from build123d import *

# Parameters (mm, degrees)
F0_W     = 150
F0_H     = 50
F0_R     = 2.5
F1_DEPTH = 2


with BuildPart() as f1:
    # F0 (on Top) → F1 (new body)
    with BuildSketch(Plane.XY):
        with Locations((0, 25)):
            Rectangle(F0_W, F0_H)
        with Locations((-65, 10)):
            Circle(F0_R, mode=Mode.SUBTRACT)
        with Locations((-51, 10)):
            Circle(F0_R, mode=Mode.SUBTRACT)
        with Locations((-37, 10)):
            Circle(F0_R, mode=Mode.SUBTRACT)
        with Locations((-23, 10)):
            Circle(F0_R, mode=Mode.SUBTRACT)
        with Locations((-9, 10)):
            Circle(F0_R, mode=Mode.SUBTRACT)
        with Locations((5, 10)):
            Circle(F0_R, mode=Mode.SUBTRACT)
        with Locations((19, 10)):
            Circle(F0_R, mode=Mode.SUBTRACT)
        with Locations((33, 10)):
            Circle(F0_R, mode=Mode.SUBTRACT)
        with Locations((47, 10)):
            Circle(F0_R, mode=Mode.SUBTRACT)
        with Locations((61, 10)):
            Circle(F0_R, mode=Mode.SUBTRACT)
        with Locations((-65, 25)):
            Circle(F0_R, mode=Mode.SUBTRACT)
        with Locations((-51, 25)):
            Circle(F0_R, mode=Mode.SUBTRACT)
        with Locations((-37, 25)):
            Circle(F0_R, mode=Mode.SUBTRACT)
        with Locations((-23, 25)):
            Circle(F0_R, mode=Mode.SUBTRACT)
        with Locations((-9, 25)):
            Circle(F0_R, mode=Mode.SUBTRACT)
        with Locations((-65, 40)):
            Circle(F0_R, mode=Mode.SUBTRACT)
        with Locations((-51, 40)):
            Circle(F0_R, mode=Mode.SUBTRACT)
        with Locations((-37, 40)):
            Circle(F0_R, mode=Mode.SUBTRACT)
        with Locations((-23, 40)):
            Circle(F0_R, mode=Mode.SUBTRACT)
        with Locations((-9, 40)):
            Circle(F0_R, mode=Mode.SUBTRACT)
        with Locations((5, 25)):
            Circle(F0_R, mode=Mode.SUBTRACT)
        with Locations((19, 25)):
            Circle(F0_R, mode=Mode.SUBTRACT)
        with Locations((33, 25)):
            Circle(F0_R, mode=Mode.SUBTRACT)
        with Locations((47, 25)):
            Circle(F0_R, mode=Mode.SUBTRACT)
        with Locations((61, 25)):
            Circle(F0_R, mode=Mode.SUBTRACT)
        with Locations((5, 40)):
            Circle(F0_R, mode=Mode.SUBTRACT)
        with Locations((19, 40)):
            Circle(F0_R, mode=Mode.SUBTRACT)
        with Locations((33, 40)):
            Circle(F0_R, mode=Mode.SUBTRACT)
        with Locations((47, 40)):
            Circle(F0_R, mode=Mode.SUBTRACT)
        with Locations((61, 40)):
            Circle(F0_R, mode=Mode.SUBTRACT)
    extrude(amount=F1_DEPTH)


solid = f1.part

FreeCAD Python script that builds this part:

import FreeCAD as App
import Part
import Sketcher
Q = App.Units.Quantity

doc = App.newDocument("Part")
body = doc.addObject("PartDesign::Body", "Body")

# Sketch on XY plane
sketch1 = body.newObject("Sketcher::SketchObject", "Sketch")
sketch1.AttachmentSupport = (doc.getObject("XY_Plane"), [""])
sketch1.MapMode = "FlatFace"
sketch1.addGeometry([
    Part.LineSegment(App.Vector(-75, 50, 0), App.Vector(-75, 0, 0)),  # 0
    Part.LineSegment(App.Vector(-75, 0, 0), App.Vector(75, 0, 0)),  # 1
    Part.LineSegment(App.Vector(75, 0, 0), App.Vector(75, 50, 0)),  # 2
    Part.LineSegment(App.Vector(75, 50, 0), App.Vector(-75, 50, 0)),  # 3
    Part.Circle(App.Vector(-65, 10, 0), App.Vector(0, 0, 1), 2.5),  # 4
    Part.Circle(App.Vector(-51, 10, 0), App.Vector(0, 0, 1), 2.5),  # 5
    Part.Circle(App.Vector(-37, 10, 0), App.Vector(0, 0, 1), 2.5),  # 6
    Part.Circle(App.Vector(-23, 10, 0), App.Vector(0, 0, 1), 2.5),  # 7
    Part.Circle(App.Vector(-9, 10, 0), App.Vector(0, 0, 1), 2.5),  # 8
    Part.Circle(App.Vector(5, 10, 0), App.Vector(0, 0, 1), 2.5),  # 9
    Part.Circle(App.Vector(19, 10, 0), App.Vector(0, 0, 1), 2.5),  # 10
    Part.Circle(App.Vector(33, 10, 0), App.Vector(0, 0, 1), 2.5),  # 11
    Part.Circle(App.Vector(47, 10, 0), App.Vector(0, 0, 1), 2.5),  # 12
    Part.Circle(App.Vector(61, 10, 0), App.Vector(0, 0, 1), 2.5),  # 13
    Part.Circle(App.Vector(-65, 25, 0), App.Vector(0, 0, 1), 2.5),  # 14
    Part.Circle(App.Vector(-51, 25, 0), App.Vector(0, 0, 1), 2.5),  # 15
    Part.Circle(App.Vector(-37, 25, 0), App.Vector(0, 0, 1), 2.5),  # 16
    Part.Circle(App.Vector(-23, 25, 0), App.Vector(0, 0, 1), 2.5),  # 17
    Part.Circle(App.Vector(-9, 25, 0), App.Vector(0, 0, 1), 2.5),  # 18
    Part.Circle(App.Vector(-65, 40, 0), App.Vector(0, 0, 1), 2.5),  # 19
    Part.Circle(App.Vector(-51, 40, 0), App.Vector(0, 0, 1), 2.5),  # 20
    Part.Circle(App.Vector(-37, 40, 0), App.Vector(0, 0, 1), 2.5),  # 21
    Part.Circle(App.Vector(-23, 40, 0), App.Vector(0, 0, 1), 2.5),  # 22
    Part.Circle(App.Vector(-9, 40, 0), App.Vector(0, 0, 1), 2.5),  # 23
    Part.Circle(App.Vector(5, 25, 0), App.Vector(0, 0, 1), 2.5),  # 24
    Part.Circle(App.Vector(19, 25, 0), App.Vector(0, 0, 1), 2.5),  # 25
    Part.Circle(App.Vector(33, 25, 0), App.Vector(0, 0, 1), 2.5),  # 26
    Part.Circle(App.Vector(47, 25, 0), App.Vector(0, 0, 1), 2.5),  # 27
    Part.Circle(App.Vector(61, 25, 0), App.Vector(0, 0, 1), 2.5),  # 28
    Part.Circle(App.Vector(5, 40, 0), App.Vector(0, 0, 1), 2.5),  # 29
    Part.Circle(App.Vector(19, 40, 0), App.Vector(0, 0, 1), 2.5),  # 30
    Part.Circle(App.Vector(33, 40, 0), App.Vector(0, 0, 1), 2.5),  # 31
    Part.Circle(App.Vector(47, 40, 0), App.Vector(0, 0, 1), 2.5),  # 32
    Part.Circle(App.Vector(61, 40, 0), App.Vector(0, 0, 1), 2.5),  # 33
], False)
sketch1.addConstraint([
    Sketcher.Constraint("Coincident", 0, 2, 1, 1),
    Sketcher.Constraint("Coincident", 1, 2, 2, 1),
    Sketcher.Constraint("Coincident", 2, 2, 3, 1),
    Sketcher.Constraint("Coincident", 3, 2, 0, 1),
    Sketcher.Constraint("Vertical", 0),
    Sketcher.Constraint("Horizontal", 1),
    Sketcher.Constraint("Vertical", 2),
    Sketcher.Constraint("Horizontal", 3),
    Sketcher.Constraint("Equal", 4, 5),
    Sketcher.Constraint("Equal", 5, 6),
    Sketcher.Constraint("Equal", 6, 7),
    Sketcher.Constraint("Equal", 7, 8),
    Sketcher.Constraint("Equal", 8, 9),
    Sketcher.Constraint("Equal", 9, 10),
    Sketcher.Constraint("Equal", 10, 11),
    Sketcher.Constraint("Equal", 11, 12),
    Sketcher.Constraint("Equal", 12, 13),
    Sketcher.Constraint("Equal", 13, 14),
    Sketcher.Constraint("Equal", 14, 15),
    Sketcher.Constraint("Equal", 15, 16),
    Sketcher.Constraint("Equal", 16, 17),
    Sketcher.Constraint("Equal", 17, 18),
    Sketcher.Constraint("Equal", 18, 19),
    Sketcher.Constraint("Equal", 19, 20),
    Sketcher.Constraint("Equal", 20, 21),
    Sketcher.Constraint("Equal", 21, 22),
    Sketcher.Constraint("Equal", 22, 23),
    Sketcher.Constraint("Equal", 23, 24),
    Sketcher.Constraint("Equal", 24, 25),
    Sketcher.Constraint("Equal", 25, 26),
    Sketcher.Constraint("Equal", 26, 27),
    Sketcher.Constraint("Equal", 27, 28),
    Sketcher.Constraint("Equal", 28, 29),
    Sketcher.Constraint("Equal", 29, 30),
    Sketcher.Constraint("Equal", 30, 31),
    Sketcher.Constraint("Equal", 31, 32),
    Sketcher.Constraint("Equal", 32, 33),
    Sketcher.Constraint("Symmetric", 0, 2, 1, 2, -1, 1),
    Sketcher.Constraint("Horizontal", 4, 3, 5, 3),
    Sketcher.Constraint("Horizontal", 5, 3, 6, 3),
    Sketcher.Constraint("Horizontal", 6, 3, 7, 3),
    Sketcher.Constraint("Horizontal", 7, 3, 8, 3),
    Sketcher.Constraint("Horizontal", 8, 3, 9, 3),
    Sketcher.Constraint("Horizontal", 9, 3, 10, 3),
    Sketcher.Constraint("Horizontal", 10, 3, 11, 3),
    Sketcher.Constraint("Horizontal", 11, 3, 12, 3),
    Sketcher.Constraint("Horizontal", 12, 3, 13, 3),
    Sketcher.Constraint("Horizontal", 14, 3, 15, 3),
    Sketcher.Constraint("Horizontal", 15, 3, 16, 3),
    Sketcher.Constraint("Horizontal", 16, 3, 17, 3),
    Sketcher.Constraint("Horizontal", 17, 3, 18, 3),
    Sketcher.Constraint("Horizontal", 19, 3, 20, 3),
    Sketcher.Constraint("Horizontal", 20, 3, 21, 3),
    Sketcher.Constraint("Horizontal", 21, 3, 22, 3),
    Sketcher.Constraint("Horizontal", 22, 3, 23, 3),
    Sketcher.Constraint("Horizontal", 18, 3, 24, 3),
    Sketcher.Constraint("Horizontal", 24, 3, 25, 3),
    Sketcher.Constraint("Horizontal", 25, 3, 26, 3),
    Sketcher.Constraint("Horizontal", 26, 3, 27, 3),
    Sketcher.Constraint("Horizontal", 27, 3, 28, 3),
    Sketcher.Constraint("Horizontal", 23, 3, 29, 3),
    Sketcher.Constraint("Horizontal", 29, 3, 30, 3),
    Sketcher.Constraint("Horizontal", 30, 3, 31, 3),
    Sketcher.Constraint("Horizontal", 31, 3, 32, 3),
    Sketcher.Constraint("Horizontal", 32, 3, 33, 3),
    Sketcher.Constraint("Vertical", 4, 3, 14, 3),
    Sketcher.Constraint("Vertical", 5, 3, 15, 3),
    Sketcher.Constraint("Vertical", 6, 3, 16, 3),
    Sketcher.Constraint("Vertical", 7, 3, 17, 3),
    Sketcher.Constraint("Vertical", 8, 3, 18, 3),
    Sketcher.Constraint("Vertical", 14, 3, 19, 3),
    Sketcher.Constraint("Vertical", 15, 3, 20, 3),
    Sketcher.Constraint("Vertical", 16, 3, 21, 3),
    Sketcher.Constraint("Vertical", 17, 3, 22, 3),
    Sketcher.Constraint("Vertical", 18, 3, 23, 3),
    Sketcher.Constraint("Vertical", 9, 3, 24, 3),
    Sketcher.Constraint("Vertical", 10, 3, 25, 3),
    Sketcher.Constraint("Vertical", 11, 3, 26, 3),
    Sketcher.Constraint("Vertical", 12, 3, 27, 3),
    Sketcher.Constraint("Vertical", 13, 3, 28, 3),
    Sketcher.Constraint("Vertical", 24, 3, 29, 3),
    Sketcher.Constraint("Vertical", 25, 3, 30, 3),
    Sketcher.Constraint("Vertical", 26, 3, 31, 3),
    Sketcher.Constraint("Vertical", 27, 3, 32, 3),
    Sketcher.Constraint("Vertical", 28, 3, 33, 3),
    Sketcher.Constraint("Diameter", 4, Q("5 mm")),
    Sketcher.Constraint("DistanceX", 1, 1, 1, 2, Q("150 mm")),
    Sketcher.Constraint("DistanceY", 0, 2, 0, 1, Q("50 mm")),
    Sketcher.Constraint("DistanceX", 4, 3, -1, 1, Q("65 mm")),
    Sketcher.Constraint("DistanceY", -1, 1, 4, 3, Q("10 mm")),
    Sketcher.Constraint("DistanceX", 5, 3, -1, 1, Q("51 mm")),
    Sketcher.Constraint("DistanceX", 6, 3, -1, 1, Q("37 mm")),
    Sketcher.Constraint("DistanceX", 7, 3, -1, 1, Q("23 mm")),
    Sketcher.Constraint("DistanceX", 8, 3, -1, 1, Q("9 mm")),
    Sketcher.Constraint("DistanceX", -1, 1, 9, 3, Q("5 mm")),
    Sketcher.Constraint("DistanceX", -1, 1, 10, 3, Q("19 mm")),
    Sketcher.Constraint("DistanceX", -1, 1, 11, 3, Q("33 mm")),
    Sketcher.Constraint("DistanceX", -1, 1, 12, 3, Q("47 mm")),
    Sketcher.Constraint("DistanceX", -1, 1, 13, 3, Q("61 mm")),
    Sketcher.Constraint("DistanceY", -1, 1, 14, 3, Q("25 mm")),
    Sketcher.Constraint("DistanceY", -1, 1, 19, 3, Q("40 mm")),
])
pad1 = body.newObject("PartDesign::Pad", "Pad")
pad1.Profile = sketch1
pad1.Length = 2

doc.recompute()
